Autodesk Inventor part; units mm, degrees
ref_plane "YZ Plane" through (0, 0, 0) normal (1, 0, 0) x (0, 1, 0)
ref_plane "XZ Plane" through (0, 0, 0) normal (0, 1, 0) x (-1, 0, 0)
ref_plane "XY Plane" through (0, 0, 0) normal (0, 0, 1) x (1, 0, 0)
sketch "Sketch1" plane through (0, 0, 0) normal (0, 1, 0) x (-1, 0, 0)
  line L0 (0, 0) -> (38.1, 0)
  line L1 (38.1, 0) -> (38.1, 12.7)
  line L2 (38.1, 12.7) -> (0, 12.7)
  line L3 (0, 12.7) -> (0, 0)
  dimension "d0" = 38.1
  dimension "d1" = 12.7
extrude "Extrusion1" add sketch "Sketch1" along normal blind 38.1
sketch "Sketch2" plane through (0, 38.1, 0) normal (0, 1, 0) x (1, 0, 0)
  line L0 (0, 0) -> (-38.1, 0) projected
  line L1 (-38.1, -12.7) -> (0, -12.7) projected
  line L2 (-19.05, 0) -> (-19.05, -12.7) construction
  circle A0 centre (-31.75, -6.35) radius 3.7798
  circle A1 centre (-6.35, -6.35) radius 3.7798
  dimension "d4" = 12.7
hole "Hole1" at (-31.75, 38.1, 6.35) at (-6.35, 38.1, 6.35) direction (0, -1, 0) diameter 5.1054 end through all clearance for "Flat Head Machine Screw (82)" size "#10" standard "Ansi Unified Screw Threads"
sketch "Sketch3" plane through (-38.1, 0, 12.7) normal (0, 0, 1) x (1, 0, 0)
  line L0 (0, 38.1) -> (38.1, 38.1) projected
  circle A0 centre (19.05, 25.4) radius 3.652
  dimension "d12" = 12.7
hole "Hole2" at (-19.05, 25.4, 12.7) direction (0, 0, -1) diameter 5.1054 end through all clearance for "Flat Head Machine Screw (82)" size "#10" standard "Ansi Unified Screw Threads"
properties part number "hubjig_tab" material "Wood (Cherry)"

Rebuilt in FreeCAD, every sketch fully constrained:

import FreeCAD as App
import Part
import Sketcher
from FreeCAD import Vector
Q = App.Units.Quantity

doc = App.newDocument("Part")
body = doc.addObject("PartDesign::Body", "Body")

# Sketch on XZ plane
sketch1 = doc.addObject("Sketcher::SketchObject", "Sketch")
body.addObject(sketch1)
sketch1.AttachmentSupport = (doc.XZ_Plane, [""])
sketch1.MapMode = "FlatFace"
sketch1.addGeometry(Part.LineSegment(Vector(0, 13, 0), Vector(0, 0, 0)), False)
sketch1.addGeometry(Part.LineSegment(Vector(0, 0, 0), Vector(-38, 0, 0)), False)
sketch1.addGeometry(Part.LineSegment(Vector(-38, 0, 0), Vector(-38, 13, 0)), False)
sketch1.addGeometry(Part.LineSegment(Vector(-38, 13, 0), Vector(0, 13, 0)), False)
sketch1.addConstraint(Sketcher.Constraint("Coincident", 0, 2, 1, 1))
sketch1.addConstraint(Sketcher.Constraint("Coincident", 1, 2, 2, 1))
sketch1.addConstraint(Sketcher.Constraint("Coincident", 2, 2, 3, 1))
sketch1.addConstraint(Sketcher.Constraint("Coincident", 3, 2, 0, 1))
sketch1.addConstraint(Sketcher.Constraint("Vertical", 0))
sketch1.addConstraint(Sketcher.Constraint("Horizontal", 1))
sketch1.addConstraint(Sketcher.Constraint("Vertical", 2))
sketch1.addConstraint(Sketcher.Constraint("Horizontal", 3))
sketch1.addConstraint(Sketcher.Constraint("Coincident", 0, 2, -1, 1))
sketch1.addConstraint(Sketcher.Constraint("DistanceX", 1, 2, 1, 1, Q("1.5 in")))
sketch1.addConstraint(Sketcher.Constraint("DistanceY", 0, 2, 0, 1, Q("0.5 in")))
pad1 = doc.addObject("PartDesign::Pad", "Pad")
body.addObject(pad1)
pad1.Profile = sketch1
pad1.Length = Q("1.5 in")
pad1.Reversed = True

# Sketch on XZ plane
sketch2 = doc.addObject("Sketcher::SketchObject", "Sketch001")
body.addObject(sketch2)
sketch2.AttachmentSupport = (doc.XZ_Plane, [""])
sketch2.MapMode = "FlatFace"
sketch2.AttachmentOffset = App.Placement(Vector(0, 0, -1.5 * 25.4), App.Rotation())
sketch2.addGeometry(Part.Circle(Vector(-31.8, 6.3, 0), Vector(0, 0, 1), 2.6), False)
sketch2.addGeometry(Part.Circle(Vector(-6.3, 6.3, 0), Vector(0, 0, 1), 2.6), False)
sketch2.addConstraint(Sketcher.Constraint("Equal", 0, 1))
sketch2.addConstraint(Sketcher.Constraint("Horizontal", 0, 3, 1, 3))
sketch2.addConstraint(Sketcher.Constraint("Diameter", 0, Q("0.201 in")))
sketch2.addConstraint(Sketcher.Constraint("DistanceX", 0, 3, 1, 3, Q("1 in")))
sketch2.addConstraint(Sketcher.Constraint("DistanceX", 0, 3, -1, 1, Q("1.25 in")))
sketch2.addConstraint(Sketcher.Constraint("DistanceY", -1, 1, 0, 3, Q("0.25 in")))
doc.recompute()
hole = doc.addObject("PartDesign::Hole", "Hole")
body.addObject(hole)
hole.Profile = sketch2
hole.ThreadType = "None"
hole.Diameter = Q("0.201 in")
hole.DepthType = "ThroughAll"
hole.Reversed = True

# Sketch on XY plane
sketch3 = doc.addObject("Sketcher::SketchObject", "Sketch002")
body.addObject(sketch3)
sketch3.AttachmentSupport = (doc.XY_Plane, [""])
sketch3.MapMode = "FlatFace"
sketch3.AttachmentOffset = App.Placement(Vector(0, 0, 0.5 * 25.4), App.Rotation())
sketch3.addGeometry(Part.Circle(Vector(-19.1, 25.4, 0), Vector(0, 0, 1), 2.6), False)
sketch3.addConstraint(Sketcher.Constraint("Diameter", 0, Q("0.201 in")))
sketch3.addConstraint(Sketcher.Constraint("DistanceY", -1, 1, 0, 3, Q("1 in")))
sketch3.addConstraint(Sketcher.Constraint("DistanceX", 0, 3, -1, 1, Q("0.75 in")))
doc.recompute()
hole2 = doc.addObject("PartDesign::Hole", "Hole001")
body.addObject(hole2)
hole2.Profile = sketch3
hole2.ThreadType = "None"
hole2.Diameter = Q("0.201 in")
hole2.DepthType = "ThroughAll"

doc.recompute()
